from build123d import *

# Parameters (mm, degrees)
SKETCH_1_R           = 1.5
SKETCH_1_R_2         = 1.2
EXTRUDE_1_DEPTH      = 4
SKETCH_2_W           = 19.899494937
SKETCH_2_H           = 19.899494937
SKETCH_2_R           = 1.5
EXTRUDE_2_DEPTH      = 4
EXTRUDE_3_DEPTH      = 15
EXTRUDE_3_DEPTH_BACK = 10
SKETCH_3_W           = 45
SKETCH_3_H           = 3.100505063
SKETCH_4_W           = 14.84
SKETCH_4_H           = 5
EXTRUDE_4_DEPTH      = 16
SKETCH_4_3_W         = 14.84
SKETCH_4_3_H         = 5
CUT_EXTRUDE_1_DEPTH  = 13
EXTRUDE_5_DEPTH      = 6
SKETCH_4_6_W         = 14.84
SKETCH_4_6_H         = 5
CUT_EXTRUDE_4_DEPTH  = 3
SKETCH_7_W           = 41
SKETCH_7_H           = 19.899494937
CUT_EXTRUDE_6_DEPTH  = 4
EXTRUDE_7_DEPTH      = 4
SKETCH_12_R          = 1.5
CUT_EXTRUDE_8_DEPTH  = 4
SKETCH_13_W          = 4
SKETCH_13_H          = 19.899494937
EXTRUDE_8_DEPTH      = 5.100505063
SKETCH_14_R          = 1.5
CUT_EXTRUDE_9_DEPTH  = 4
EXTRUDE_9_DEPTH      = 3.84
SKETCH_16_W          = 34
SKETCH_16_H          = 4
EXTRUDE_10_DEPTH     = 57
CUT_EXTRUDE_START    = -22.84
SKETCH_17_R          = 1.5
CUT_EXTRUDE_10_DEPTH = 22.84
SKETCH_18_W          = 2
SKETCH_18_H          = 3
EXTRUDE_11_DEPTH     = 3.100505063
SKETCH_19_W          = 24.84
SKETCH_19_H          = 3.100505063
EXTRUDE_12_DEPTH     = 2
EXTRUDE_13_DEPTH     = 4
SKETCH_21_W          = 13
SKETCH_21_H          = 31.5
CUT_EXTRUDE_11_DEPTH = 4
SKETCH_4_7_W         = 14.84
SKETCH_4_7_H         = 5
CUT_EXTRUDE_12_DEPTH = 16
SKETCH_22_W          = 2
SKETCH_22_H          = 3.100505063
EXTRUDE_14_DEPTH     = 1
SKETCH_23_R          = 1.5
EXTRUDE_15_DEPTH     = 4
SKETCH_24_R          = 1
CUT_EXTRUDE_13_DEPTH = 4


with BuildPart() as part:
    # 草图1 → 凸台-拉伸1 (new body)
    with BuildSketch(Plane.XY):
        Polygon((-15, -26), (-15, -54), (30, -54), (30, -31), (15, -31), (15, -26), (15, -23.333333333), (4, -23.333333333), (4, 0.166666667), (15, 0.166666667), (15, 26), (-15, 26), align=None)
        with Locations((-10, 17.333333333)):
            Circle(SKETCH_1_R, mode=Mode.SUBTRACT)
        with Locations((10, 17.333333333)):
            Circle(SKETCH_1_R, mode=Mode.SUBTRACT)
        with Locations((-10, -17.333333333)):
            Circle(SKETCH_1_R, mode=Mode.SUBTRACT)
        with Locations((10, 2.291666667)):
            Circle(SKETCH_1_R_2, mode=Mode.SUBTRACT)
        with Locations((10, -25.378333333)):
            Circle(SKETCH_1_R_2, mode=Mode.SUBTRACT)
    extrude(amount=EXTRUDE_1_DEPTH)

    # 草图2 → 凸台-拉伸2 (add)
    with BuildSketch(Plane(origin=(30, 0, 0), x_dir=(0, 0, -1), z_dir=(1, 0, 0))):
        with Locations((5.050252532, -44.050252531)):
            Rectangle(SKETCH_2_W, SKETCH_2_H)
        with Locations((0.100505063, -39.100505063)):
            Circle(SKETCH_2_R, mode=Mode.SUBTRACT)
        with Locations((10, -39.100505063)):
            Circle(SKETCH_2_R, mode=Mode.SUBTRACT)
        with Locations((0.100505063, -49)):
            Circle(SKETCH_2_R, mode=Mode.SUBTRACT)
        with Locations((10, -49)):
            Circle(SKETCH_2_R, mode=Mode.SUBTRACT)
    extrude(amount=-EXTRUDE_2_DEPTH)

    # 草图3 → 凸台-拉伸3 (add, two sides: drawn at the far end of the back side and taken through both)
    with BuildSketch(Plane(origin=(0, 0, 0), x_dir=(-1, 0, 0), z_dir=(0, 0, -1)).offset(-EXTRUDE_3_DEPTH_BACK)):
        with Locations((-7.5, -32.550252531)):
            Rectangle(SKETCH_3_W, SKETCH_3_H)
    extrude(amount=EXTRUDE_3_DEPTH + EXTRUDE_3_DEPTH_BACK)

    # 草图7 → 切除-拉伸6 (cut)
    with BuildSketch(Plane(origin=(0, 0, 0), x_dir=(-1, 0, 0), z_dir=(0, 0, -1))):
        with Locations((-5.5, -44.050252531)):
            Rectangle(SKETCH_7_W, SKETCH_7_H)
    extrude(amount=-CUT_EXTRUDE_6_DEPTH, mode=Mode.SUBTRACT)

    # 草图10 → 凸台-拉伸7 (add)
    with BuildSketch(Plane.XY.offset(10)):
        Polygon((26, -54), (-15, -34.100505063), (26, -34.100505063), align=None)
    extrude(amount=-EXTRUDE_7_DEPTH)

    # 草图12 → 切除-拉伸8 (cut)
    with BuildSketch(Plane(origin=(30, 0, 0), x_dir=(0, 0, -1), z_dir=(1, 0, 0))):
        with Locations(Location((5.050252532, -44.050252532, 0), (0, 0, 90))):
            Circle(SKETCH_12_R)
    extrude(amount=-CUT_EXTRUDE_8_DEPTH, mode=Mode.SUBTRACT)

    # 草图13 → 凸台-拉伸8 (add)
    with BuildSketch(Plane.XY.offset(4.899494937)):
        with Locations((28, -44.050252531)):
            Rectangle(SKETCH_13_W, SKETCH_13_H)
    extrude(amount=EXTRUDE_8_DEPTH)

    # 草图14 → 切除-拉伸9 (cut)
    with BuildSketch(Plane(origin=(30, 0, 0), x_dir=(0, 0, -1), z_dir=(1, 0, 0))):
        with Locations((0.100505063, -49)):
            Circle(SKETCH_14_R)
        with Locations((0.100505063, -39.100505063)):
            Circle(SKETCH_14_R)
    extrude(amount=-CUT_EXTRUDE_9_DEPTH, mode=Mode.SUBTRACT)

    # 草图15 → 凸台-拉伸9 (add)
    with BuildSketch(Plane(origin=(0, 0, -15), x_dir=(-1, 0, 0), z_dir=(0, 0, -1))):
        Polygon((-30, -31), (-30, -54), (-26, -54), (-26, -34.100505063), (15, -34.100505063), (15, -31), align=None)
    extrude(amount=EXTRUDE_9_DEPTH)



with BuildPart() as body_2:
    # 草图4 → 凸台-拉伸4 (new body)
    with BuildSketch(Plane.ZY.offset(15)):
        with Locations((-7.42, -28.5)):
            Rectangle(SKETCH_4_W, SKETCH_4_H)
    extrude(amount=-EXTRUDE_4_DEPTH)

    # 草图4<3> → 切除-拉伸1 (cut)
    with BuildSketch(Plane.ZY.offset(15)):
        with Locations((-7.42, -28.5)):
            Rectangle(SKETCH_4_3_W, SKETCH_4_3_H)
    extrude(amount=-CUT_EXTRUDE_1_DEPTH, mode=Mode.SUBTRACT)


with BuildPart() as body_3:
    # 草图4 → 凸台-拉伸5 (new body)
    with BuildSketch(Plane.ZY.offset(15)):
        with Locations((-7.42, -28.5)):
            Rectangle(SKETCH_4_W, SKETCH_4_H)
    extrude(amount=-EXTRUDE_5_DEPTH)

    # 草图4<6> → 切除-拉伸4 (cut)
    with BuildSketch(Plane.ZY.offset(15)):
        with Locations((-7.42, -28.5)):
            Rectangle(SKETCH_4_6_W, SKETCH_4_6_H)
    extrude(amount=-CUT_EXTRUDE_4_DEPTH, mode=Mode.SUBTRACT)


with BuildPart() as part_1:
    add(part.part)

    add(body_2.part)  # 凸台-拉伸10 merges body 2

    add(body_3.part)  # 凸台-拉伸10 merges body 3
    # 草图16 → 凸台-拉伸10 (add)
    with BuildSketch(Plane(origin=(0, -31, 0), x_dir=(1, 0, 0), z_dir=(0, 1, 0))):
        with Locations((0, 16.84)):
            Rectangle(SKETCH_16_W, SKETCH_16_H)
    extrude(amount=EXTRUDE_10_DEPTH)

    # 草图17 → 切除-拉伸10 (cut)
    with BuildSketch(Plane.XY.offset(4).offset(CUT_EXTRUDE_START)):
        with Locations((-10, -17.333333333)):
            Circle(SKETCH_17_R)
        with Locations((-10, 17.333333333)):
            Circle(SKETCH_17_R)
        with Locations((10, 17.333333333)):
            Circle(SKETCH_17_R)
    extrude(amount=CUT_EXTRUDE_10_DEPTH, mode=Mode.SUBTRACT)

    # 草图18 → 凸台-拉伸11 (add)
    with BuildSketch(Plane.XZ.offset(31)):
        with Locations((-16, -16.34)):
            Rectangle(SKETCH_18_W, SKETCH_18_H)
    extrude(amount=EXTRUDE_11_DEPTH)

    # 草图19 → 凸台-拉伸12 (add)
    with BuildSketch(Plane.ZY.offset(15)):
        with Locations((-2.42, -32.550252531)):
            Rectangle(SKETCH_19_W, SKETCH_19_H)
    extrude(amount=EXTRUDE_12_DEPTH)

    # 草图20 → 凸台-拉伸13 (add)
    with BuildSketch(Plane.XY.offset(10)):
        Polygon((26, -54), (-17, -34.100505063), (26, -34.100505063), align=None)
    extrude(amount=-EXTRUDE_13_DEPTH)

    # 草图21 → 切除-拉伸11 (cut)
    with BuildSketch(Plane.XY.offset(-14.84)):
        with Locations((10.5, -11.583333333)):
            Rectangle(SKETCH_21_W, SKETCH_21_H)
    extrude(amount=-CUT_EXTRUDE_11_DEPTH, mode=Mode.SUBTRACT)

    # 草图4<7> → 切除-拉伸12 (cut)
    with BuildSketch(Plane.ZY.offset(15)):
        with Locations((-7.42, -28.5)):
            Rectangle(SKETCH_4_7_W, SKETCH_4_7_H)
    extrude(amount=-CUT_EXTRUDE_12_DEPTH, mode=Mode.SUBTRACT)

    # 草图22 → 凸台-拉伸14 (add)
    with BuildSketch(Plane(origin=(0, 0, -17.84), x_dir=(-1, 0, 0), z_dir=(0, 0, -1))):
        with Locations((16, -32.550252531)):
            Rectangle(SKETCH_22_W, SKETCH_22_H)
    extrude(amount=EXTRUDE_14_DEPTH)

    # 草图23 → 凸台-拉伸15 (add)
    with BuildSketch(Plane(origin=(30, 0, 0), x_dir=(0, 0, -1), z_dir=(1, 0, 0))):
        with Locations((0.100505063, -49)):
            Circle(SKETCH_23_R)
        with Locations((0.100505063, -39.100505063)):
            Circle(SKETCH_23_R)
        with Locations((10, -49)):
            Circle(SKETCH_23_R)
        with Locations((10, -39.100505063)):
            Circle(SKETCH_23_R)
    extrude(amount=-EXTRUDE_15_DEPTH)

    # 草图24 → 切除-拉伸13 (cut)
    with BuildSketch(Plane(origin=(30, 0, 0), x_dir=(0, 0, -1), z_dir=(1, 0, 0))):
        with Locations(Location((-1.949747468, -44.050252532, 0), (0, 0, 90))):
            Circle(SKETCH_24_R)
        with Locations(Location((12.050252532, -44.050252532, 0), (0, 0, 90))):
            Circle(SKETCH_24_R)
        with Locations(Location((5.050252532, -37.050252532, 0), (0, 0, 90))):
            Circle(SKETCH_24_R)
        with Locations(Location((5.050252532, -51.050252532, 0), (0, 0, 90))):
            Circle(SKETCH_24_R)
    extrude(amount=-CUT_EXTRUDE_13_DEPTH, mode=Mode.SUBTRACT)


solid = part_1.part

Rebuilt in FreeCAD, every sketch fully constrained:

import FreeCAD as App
import Part
import Sketcher
from FreeCAD import Vector
Q = App.Units.Quantity


def add_polygon(sketch, points):
    """Adds a closed chain of lines whose ends are joined by coincident constraints."""
    first, n = sketch.GeometryCount, len(points)
    for a, b in zip(points, points[1:] + points[:1]):
        sketch.addGeometry(Part.LineSegment(App.Vector(*a, 0), App.Vector(*b, 0)), False)
    for i in range(n):
        sketch.addConstraint(Sketcher.Constraint("Coincident", first + i, 2, first + (i + 1) % n, 1))

doc = App.newDocument("Part")
params = doc.addObject("Spreadsheet::Sheet", "Params")
for row, (alias, value) in enumerate([
    ("sketch1_diameter", "3 mm"),
    ("sketch1_diameter2", "2.4 mm"),
    ("sketch1_width", "45 mm"),
    ("sketch1_width2", "15 mm"),
    ("sketch1_width3", "11 mm"),
    ("pad1_length", "4 mm"),
    ("sketch2_diameter", "3 mm"),
    ("pad2_length", "4 mm"),
    ("sketch3_width", "45 mm"),
    ("pad3_length", "15 mm"),
    ("pad3_length2", "10 mm"),
    ("sketch4_width", "41 mm"),
    ("pocket1_length", "4 mm"),
    ("sketch5_width", "41 mm"),
    ("pad4_length", "4 mm"),
    ("sketch6_diameter", "3 mm"),
    ("pocket2_length", "4 mm"),
    ("sketch7_width", "4 mm"),
    ("pad5_length", "5.100505 mm"),
    ("sketch8_diameter", "3 mm"),
    ("pocket3_length", "4 mm"),
    ("sketch9_width", "4 mm"),
    ("sketch9_width2", "41 mm"),
    ("sketch9_height", "23 mm"),
    ("pad6_length", "3.84 mm"),
    ("sketch10_width", "5 mm"),
    ("sketch10_height", "14.84 mm"),
    ("pad7_length", "16 mm"),
    ("sketch11_width", "5 mm"),
    ("sketch11_height", "14.84 mm"),
    ("pocket4_length", "13 mm"),
    ("sketch12_width", "5 mm"),
    ("sketch12_height", "14.84 mm"),
    ("pad8_length", "6 mm"),
    ("sketch13_width", "5 mm"),
    ("sketch13_height", "14.84 mm"),
    ("pocket5_length", "3 mm"),
    ("sketch14_width", "34 mm"),
    ("sketch14_height", "4 mm"),
    ("pad9_length", "57 mm"),
    ("sketch15_diameter", "3 mm"),
    ("pocket6_length", "22.84 mm"),
    ("sketch16_width", "2 mm"),
    ("sketch16_height", "3 mm"),
    ("pad10_length", "3.100505 mm"),
    ("sketch17_height", "24.84 mm"),
    ("pad11_length", "2 mm"),
    ("sketch18_width", "43 mm"),
    ("pad12_length", "4 mm"),
    ("sketch19_width", "13 mm"),
    ("sketch19_height", "31.5 mm"),
    ("pocket7_length", "4 mm"),
    ("sketch20_width", "5 mm"),
    ("sketch20_height", "14.84 mm"),
    ("pocket8_length", "16 mm"),
    ("sketch21_width", "2 mm"),
    ("pad13_length", "1 mm"),
    ("sketch22_diameter", "3 mm"),
    ("pad14_length", "4 mm"),
    ("sketch23_diameter", "2 mm"),
    ("pocket9_length", "4 mm"),
], start=1):
    params.set(f"A{row}", alias)
    params.set(f"B{row}", "=" + value)
    params.setAlias(f"B{row}", alias)

body = doc.addObject("PartDesign::Body", "Body")

# Sketch on XY plane
sketch1 = body.newObject("Sketcher::SketchObject", "Sketch")
sketch1.AttachmentSupport = (doc.getObject("XY_Plane"), [""])
sketch1.MapMode = "FlatFace"
add_polygon(sketch1, [(-15, -54), (30, -54), (30, -31), (15, -31), (15, -23.3), (4, -23.3), (4, 0.2), (15, 0.2), (15, 26), (-15, 26)])  # lines 0-9
sketch1.addGeometry(Part.Circle(Vector(-10, -17.3, 0), Vector(0, 0, 1), 1.5), False)  # 10
sketch1.addGeometry(Part.Circle(Vector(10, -25.4, 0), Vector(0, 0, 1), 1.2), False)  # 11
sketch1.addGeometry(Part.Circle(Vector(-10, 17.3, 0), Vector(0, 0, 1), 1.5), False)  # 12
sketch1.addGeometry(Part.Circle(Vector(10, 2.3, 0), Vector(0, 0, 1), 1.2), False)  # 13
sketch1.addGeometry(Part.Circle(Vector(10, 17.3, 0), Vector(0, 0, 1), 1.5), False)  # 14
sketch1.addConstraint(Sketcher.Constraint("Horizontal", 0))
sketch1.addConstraint(Sketcher.Constraint("Vertical", 1))
sketch1.addConstraint(Sketcher.Constraint("Horizontal", 2))
sketch1.addConstraint(Sketcher.Constraint("Vertical", 3))
sketch1.addConstraint(Sketcher.Constraint("Horizontal", 4))
sketch1.addConstraint(Sketcher.Constraint("Vertical", 5))
sketch1.addConstraint(Sketcher.Constraint("Horizontal", 6))
sketch1.addConstraint(Sketcher.Constraint("Vertical", 7))
sketch1.addConstraint(Sketcher.Constraint("Horizontal", 8))
sketch1.addConstraint(Sketcher.Constraint("Vertical", 9))
sketch1.addConstraint(Sketcher.Constraint("Equal", 10, 12))
sketch1.addConstraint(Sketcher.Constraint("Equal", 11, 13))
sketch1.addConstraint(Sketcher.Constraint("Equal", 12, 14))
sketch1.addConstraint(Sketcher.Constraint("Symmetric", 10, 3, 14, 3, -1, 1))
sketch1.addConstraint(Sketcher.Constraint("Symmetric", 12, 3, 14, 3, -2))
sketch1.addConstraint(Sketcher.Constraint("Vertical", 11, 3, 13, 3))
sketch1.addConstraint(Sketcher.Constraint("Vertical", 13, 3, 14, 3))
sketch1.addConstraint(Sketcher.Constraint("Vertical", 3, 2, 6, 2))
sketch1.addConstraint(Sketcher.Constraint("Diameter", 10, Q("3 mm")))
sketch1.addConstraint(Sketcher.Constraint("Diameter", 11, Q("2.4 mm")))
sketch1.addConstraint(Sketcher.Constraint("DistanceX", 0, 1, 0, 2, Q("45 mm")))
sketch1.addConstraint(Sketcher.Constraint("DistanceX", 2, 2, 2, 1, Q("15 mm")))
sketch1.addConstraint(Sketcher.Constraint("DistanceX", 4, 2, 4, 1, Q("11 mm")))
sketch1.addConstraint(Sketcher.Constraint("DistanceY", 1, 1, 1, 2, Q("23 mm")))
sketch1.addConstraint(Sketcher.Constraint("DistanceY", 9, 2, 9, 1, Q("80 mm")))
sketch1.addConstraint(Sketcher.Constraint("DistanceY", 5, 1, 5, 2, Q("23.5 mm")))
sketch1.addConstraint(Sketcher.Constraint("DistanceX", 10, 3, -1, 1, Q("10 mm")))
sketch1.addConstraint(Sketcher.Constraint("DistanceX", -1, 1, 0, 2, Q("30 mm")))
sketch1.addConstraint(Sketcher.Constraint("DistanceY", 0, 2, -1, 1, Q("54 mm")))
sketch1.addConstraint(Sketcher.Constraint("DistanceY", 3, 2, 10, 3, Q("6 mm")))
sketch1.addConstraint(Sketcher.Constraint("DistanceY", 11, 3, 13, 3, Q("27.67 mm")))
sketch1.addConstraint(Sketcher.Constraint("DistanceY", 11, 3, 10, 3, Q("8.045 mm")))
sketch1.addConstraint(Sketcher.Constraint("DistanceY", 3, 1, 3, 2, Q("7.666667 mm")))
sketch1.setExpression("Constraints[28]", "Params.sketch1_diameter")
sketch1.setExpression("Constraints[29]", "Params.sketch1_diameter2")
sketch1.setExpression("Constraints[30]", "Params.sketch1_width")
sketch1.setExpression("Constraints[31]", "Params.sketch1_width2")
sketch1.setExpression("Constraints[32]", "Params.sketch1_width3")
pad1 = body.newObject("PartDesign::Pad", "Pad")
pad1.Profile = sketch1
pad1.setExpression("Length", "Params.pad1_length")

# Sketch on YZ plane
sketch2 = body.newObject("Sketcher::SketchObject", "Sketch001")
sketch2.AttachmentSupport = (doc.getObject("YZ_Plane"), [""])
sketch2.MapMode = "FlatFace"
sketch2.AttachmentOffset = App.Placement(Vector(0, 0, 30), App.Rotation())
add_polygon(sketch2, [(-34.1, 4.9), (-54, 4.9), (-54, -15), (-34.1, -15)])  # lines 0-3
sketch2.addGeometry(Part.Circle(Vector(-49, -0.1, 0), Vector(0, 0, 1), 1.5), False)  # 4
sketch2.addGeometry(Part.Circle(Vector(-49, -10, 0), Vector(0, 0, 1), 1.5), False)  # 5
sketch2.addGeometry(Part.Circle(Vector(-39.1, -0.1, 0), Vector(0, 0, 1), 1.5), False)  # 6
sketch2.addGeometry(Part.Circle(Vector(-39.1, -10, 0), Vector(0, 0, 1), 1.5), False)  # 7
sketch2.addConstraint(Sketcher.Constraint("Horizontal", 0))
sketch2.addConstraint(Sketcher.Constraint("Vertical", 1))
sketch2.addConstraint(Sketcher.Constraint("Horizontal", 2))
sketch2.addConstraint(Sketcher.Constraint("Vertical", 3))
sketch2.addConstraint(Sketcher.Constraint("Equal", 4, 5))
sketch2.addConstraint(Sketcher.Constraint("Equal", 5, 6))
sketch2.addConstraint(Sketcher.Constraint("Equal", 6, 7))
sketch2.addConstraint(Sketcher.Constraint("Horizontal", 4, 3, 6, 3))
sketch2.addConstraint(Sketcher.Constraint("Horizontal", 5, 3, 7, 3))
sketch2.addConstraint(Sketcher.Constraint("Vertical", 4, 3, 5, 3))
sketch2.addConstraint(Sketcher.Constraint("Vertical", 6, 3, 7, 3))
sketch2.addConstraint(Sketcher.Constraint("Equal", 2, 1))
sketch2.addConstraint(Sketcher.Constraint("Diameter", 4, Q("3 mm")))
sketch2.addConstraint(Sketcher.Constraint("DistanceX", 4, 3, -1, 1, Q("49 mm")))
sketch2.addConstraint(Sketcher.Constraint("DistanceY", 5, 3, -1, 1, Q("10 mm")))
sketch2.addConstraint(Sketcher.Constraint("DistanceX", 0, 2, -1, 1, Q("54 mm")))
sketch2.addConstraint(Sketcher.Constraint("DistanceY", 1, 2, -1, 1, Q("15 mm")))
sketch2.addConstraint(Sketcher.Constraint("DistanceY", 4, 3, 0, 2, Q("5 mm")))
sketch2.addConstraint(Sketcher.Constraint("DistanceX", 7, 3, 2, 2, Q("5 mm")))
sketch2.addConstraint(Sketcher.Constraint("DistanceX", 0, 2, 0, 1, Q("19.899495 mm")))
sketch2.setExpression("Constraints[16]", "Params.sketch2_diameter")
pad2 = body.newObject("PartDesign::Pad", "Pad001")
pad2.Profile = sketch2
pad2.setExpression("Length", "Params.pad2_length")
pad2.Reversed = True

# Sketch on XY plane
sketch3 = body.newObject("Sketcher::SketchObject", "Sketch002")
sketch3.AttachmentSupport = (doc.getObject("XY_Plane"), [""])
sketch3.MapMode = "FlatFace"
add_polygon(sketch3, [(30, -31), (30, -34.1), (-15, -34.1), (-15, -31)])  # lines 0-3
sketch3.addConstraint(Sketcher.Constraint("Vertical", 0))
sketch3.addConstraint(Sketcher.Constraint("Horizontal", 1))
sketch3.addConstraint(Sketcher.Constraint("Vertical", 2))
sketch3.addConstraint(Sketcher.Constraint("Horizontal", 3))
sketch3.addConstraint(Sketcher.Constraint("DistanceX", 1, 2, 1, 1, Q("45 mm")))
sketch3.addConstraint(Sketcher.Constraint("DistanceX", -1, 1, 0, 2, Q("30 mm")))
sketch3.addConstraint(Sketcher.Constraint("DistanceY", 2, 2, -1, 1, Q("31 mm")))
sketch3.addConstraint(Sketcher.Constraint("DistanceY", 0, 2, 0, 1, Q("3.100505 mm")))
sketch3.setExpression("Constraints[8]", "Params.sketch3_width")
pad3 = body.newObject("PartDesign::Pad", "Pad002")
pad3.Profile = sketch3
pad3.Type = "TwoLengths"
pad3.setExpression("Length", "Params.pad3_length")
pad3.setExpression("Length2", "Params.pad3_length2")
pad3.Reversed = True

# Sketch on XY plane
sketch4 = body.newObject("Sketcher::SketchObject", "Sketch003")
sketch4.AttachmentSupport = (doc.getObject("XY_Plane"), [""])
sketch4.MapMode = "FlatFace"
add_polygon(sketch4, [(26, -34), (26, -54), (-15, -54), (-15, -34)])  # lines 0-3
sketch4.addConstraint(Sketcher.Constraint("Vertical", 0))
sketch4.addConstraint(Sketcher.Constraint("Horizontal", 1))
sketch4.addConstraint(Sketcher.Constraint("Vertical", 2))
sketch4.addConstraint(Sketcher.Constraint("Horizontal", 3))
sketch4.addConstraint(Sketcher.Constraint("DistanceX", 1, 2, 1, 1, Q("41 mm")))
sketch4.addConstraint(Sketcher.Constraint("DistanceX", -1, 1, 0, 2, Q("26 mm")))
sketch4.addConstraint(Sketcher.Constraint("DistanceY", 0, 2, -1, 1, Q("54 mm")))
sketch4.addConstraint(Sketcher.Constraint("DistanceY", 0, 2, 0, 1, Q("19.899495 mm")))
sketch4.setExpression("Constraints[8]", "Params.sketch4_width")
pocket1 = body.newObject("PartDesign::Pocket", "Pocket")
pocket1.Profile = sketch4
pocket1.setExpression("Length", "Params.pocket1_length")
pocket1.Reversed = True

# Sketch on XY plane
sketch5 = body.newObject("Sketcher::SketchObject", "Sketch004")
sketch5.AttachmentSupport = (doc.getObject("XY_Plane"), [""])
sketch5.MapMode = "FlatFace"
sketch5.AttachmentOffset = App.Placement(Vector(0, 0, 10), App.Rotation())
add_polygon(sketch5, [(-15, -34), (26, -54), (26, -34)])  # lines 0-2
sketch5.addConstraint(Sketcher.Constraint("Vertical", 1))
sketch5.addConstraint(Sketcher.Constraint("Horizontal", 2))
sketch5.addConstraint(Sketcher.Constraint("DistanceX", 2, 2, 2, 1, Q("41 mm")))
sketch5.addConstraint(Sketcher.Constraint("DistanceX", -1, 1, 0, 2, Q("26 mm")))
sketch5.addConstraint(Sketcher.Constraint("DistanceY", 0, 2, -1, 1, Q("54 mm")))
sketch5.addConstraint(Sketcher.Constraint("DistanceY", 1, 1, 1, 2, Q("19.899495 mm")))
sketch5.setExpression("Constraints[5]", "Params.sketch5_width")
pad4 = body.newObject("PartDesign::Pad", "Pad003")
pad4.Profile = sketch5
pad4.setExpression("Length", "Params.pad4_length")
pad4.Reversed = True

# Sketch on YZ plane
sketch6 = body.newObject("Sketcher::SketchObject", "Sketch005")
sketch6.AttachmentSupport = (doc.getObject("YZ_Plane"), [""])
sketch6.MapMode = "FlatFace"
sketch6.AttachmentOffset = App.Placement(Vector(0, 0, 30), App.Rotation())
sketch6.addGeometry(Part.Circle(Vector(-44.1, -5.1, 0), Vector(0, 0, 1), 1.5), False)
sketch6.addConstraint(Sketcher.Constraint("Diameter", 0, Q("3 mm")))
sketch6.addConstraint(Sketcher.Constraint("DistanceX", 0, 3, -1, 1, Q("44.050253 mm")))
sketch6.addConstraint(Sketcher.Constraint("DistanceY", 0, 3, -1, 1, Q("5.050253 mm")))
sketch6.setExpression("Constraints[0]", "Params.sketch6_diameter")
pocket2 = body.newObject("PartDesign::Pocket", "Pocket001")
pocket2.Profile = sketch6
pocket2.setExpression("Length", "Params.pocket2_length")

# Sketch on XY plane
sketch7 = body.newObject("Sketcher::SketchObject", "Sketch006")
sketch7.AttachmentSupport = (doc.getObject("XY_Plane"), [""])
sketch7.MapMode = "FlatFace"
sketch7.AttachmentOffset = App.Placement(Vector(0, 0, 4.899495), App.Rotation())
add_polygon(sketch7, [(26, -34.1), (26, -54), (30, -54), (30, -34.1)])  # lines 0-3
sketch7.addConstraint(Sketcher.Constraint("Vertical", 0))
sketch7.addConstraint(Sketcher.Constraint("Horizontal", 1))
sketch7.addConstraint(Sketcher.Constraint("Vertical", 2))
sketch7.addConstraint(Sketcher.Constraint("Horizontal", 3))
sketch7.addConstraint(Sketcher.Constraint("DistanceX", 1, 1, 1, 2, Q("4 mm")))
sketch7.addConstraint(Sketcher.Constraint("DistanceX", -1, 1, 0, 2, Q("26 mm")))
sketch7.addConstraint(Sketcher.Constraint("DistanceY", 0, 2, -1, 1, Q("54 mm")))
sketch7.addConstraint(Sketcher.Constraint("DistanceY", 0, 2, 0, 1, Q("19.899495 mm")))
sketch7.setExpression("Constraints[8]", "Params.sketch7_width")
pad5 = body.newObject("PartDesign::Pad", "Pad004")
pad5.Profile = sketch7
pad5.setExpression("Length", "Params.pad5_length")

# Sketch on YZ plane
sketch8 = body.newObject("Sketcher::SketchObject", "Sketch007")
sketch8.AttachmentSupport = (doc.getObject("YZ_Plane"), [""])
sketch8.MapMode = "FlatFace"
sketch8.AttachmentOffset = App.Placement(Vector(0, 0, 30), App.Rotation())
sketch8.addGeometry(Part.Circle(Vector(-49, -0.1, 0), Vector(0, 0, 1), 1.5), False)
sketch8.addGeometry(Part.Circle(Vector(-39.1, -0.1, 0), Vector(0, 0, 1), 1.5), False)
sketch8.addConstraint(Sketcher.Constraint("Equal", 0, 1))
sketch8.addConstraint(Sketcher.Constraint("Horizontal", 0, 3, 1, 3))
sketch8.addConstraint(Sketcher.Constraint("Diameter", 0, Q("3 mm")))
sketch8.addConstraint(Sketcher.Constraint("DistanceX", 0, 3, -1, 1, Q("49 mm")))
sketch8.addConstraint(Sketcher.Constraint("DistanceY", 0, 3, -1, 1, Q("0.100505 mm")))
sketch8.addConstraint(Sketcher.Constraint("DistanceX", 1, 3, -1, 1, Q("39.100505 mm")))
sketch8.setExpression("Constraints[2]", "Params.sketch8_diameter")
pocket3 = body.newObject("PartDesign::Pocket", "Pocket002")
pocket3.Profile = sketch8
pocket3.setExpression("Length", "Params.pocket3_length")

# Sketch on XY plane
sketch9 = body.newObject("Sketcher::SketchObject", "Sketch008")
sketch9.AttachmentSupport = (doc.getObject("XY_Plane"), [""])
sketch9.MapMode = "FlatFace"
sketch9.AttachmentOffset = App.Placement(Vector(0, 0, -15), App.Rotation())
add_polygon(sketch9, [(30, -31), (30, -54), (26, -54), (26, -34.1), (-15, -34.1), (-15, -31)])  # lines 0-5
sketch9.addConstraint(Sketcher.Constraint("Vertical", 0))
sketch9.addConstraint(Sketcher.Constraint("Horizontal", 1))
sketch9.addConstraint(Sketcher.Constraint("Vertical", 2))
sketch9.addConstraint(Sketcher.Constraint("Horizontal", 3))
sketch9.addConstraint(Sketcher.Constraint("Vertical", 4))
sketch9.addConstraint(Sketcher.Constraint("Horizontal", 5))
sketch9.addConstraint(Sketcher.Constraint("DistanceX", 1, 2, 1, 1, Q("4 mm")))
sketch9.addConstraint(Sketcher.Constraint("DistanceX", 3, 2, 3, 1, Q("41 mm")))
sketch9.addConstraint(Sketcher.Constraint("DistanceY", 0, 2, 0, 1, Q("23 mm")))
sketch9.addConstraint(Sketcher.Constraint("DistanceX", -1, 1, 0, 2, Q("30 mm")))
sketch9.addConstraint(Sketcher.Constraint("DistanceY", 0, 2, -1, 1, Q("54 mm")))
sketch9.addConstraint(Sketcher.Constraint("DistanceY", 2, 1, 2, 2, Q("19.899495 mm")))
sketch9.setExpression("Constraints[12]", "Params.sketch9_width")
sketch9.setExpression("Constraints[13]", "Params.sketch9_width2")
sketch9.setExpression("Constraints[14]", "Params.sketch9_height")
pad6 = body.newObject("PartDesign::Pad", "Pad005")
pad6.Profile = sketch9
pad6.setExpression("Length", "Params.pad6_length")
pad6.Reversed = True
body2 = doc.addObject("PartDesign::Body", "Body001")

# Sketch on YZ plane
sketch10 = body2.newObject("Sketcher::SketchObject", "Sketch009")
sketch10.AttachmentSupport = (doc.getObject("YZ_Plane001"), [""])
sketch10.MapMode = "FlatFace"
sketch10.AttachmentOffset = App.Placement(Vector(0, 0, -15), App.Rotation())
add_polygon(sketch10, [(-26, -15), (-31, -15), (-31, 0), (-26, 0)])  # lines 0-3
sketch10.addConstraint(Sketcher.Constraint("Horizontal", 0))
sketch10.addConstraint(Sketcher.Constraint("Vertical", 1))
sketch10.addConstraint(Sketcher.Constraint("Horizontal", 2))
sketch10.addConstraint(Sketcher.Constraint("Vertical", 3))
sketch10.addConstraint(Sketcher.Constraint("PointOnObject", 1, 2, -1))
sketch10.addConstraint(Sketcher.Constraint("DistanceX", 0, 2, 0, 1, Q("5 mm")))
sketch10.addConstraint(Sketcher.Constraint("DistanceX", 0, 2, -1, 1, Q("31 mm")))
sketch10.addConstraint(Sketcher.Constraint("DistanceY", 1, 1, 1, 2, Q("14.84 mm")))
sketch10.setExpression("Constraints[9]", "Params.sketch10_width")
sketch10.setExpression("Constraints[11]", "Params.sketch10_height")
pad7 = body2.newObject("PartDesign::Pad", "Pad006")
pad7.Profile = sketch10
pad7.setExpression("Length", "Params.pad7_length")

# Sketch on YZ plane
sketch11 = body2.newObject("Sketcher::SketchObject", "Sketch010")
sketch11.AttachmentSupport = (doc.getObject("YZ_Plane001"), [""])
sketch11.MapMode = "FlatFace"
sketch11.AttachmentOffset = App.Placement(Vector(0, 0, -15), App.Rotation())
add_polygon(sketch11, [(-26, -15), (-31, -15), (-31, 0), (-26, 0)])  # lines 0-3
sketch11.addConstraint(Sketcher.Constraint("Horizontal", 0))
sketch11.addConstraint(Sketcher.Constraint("Vertical", 1))
sketch11.addConstraint(Sketcher.Constraint("Horizontal", 2))
sketch11.addConstraint(Sketcher.Constraint("Vertical", 3))
sketch11.addConstraint(Sketcher.Constraint("PointOnObject", 1, 2, -1))
sketch11.addConstraint(Sketcher.Constraint("DistanceX", 0, 2, 0, 1, Q("5 mm")))
sketch11.addConstraint(Sketcher.Constraint("DistanceX", 0, 2, -1, 1, Q("31 mm")))
sketch11.addConstraint(Sketcher.Constraint("DistanceY", 1, 1, 1, 2, Q("14.84 mm")))
sketch11.setExpression("Constraints[9]", "Params.sketch11_width")
sketch11.setExpression("Constraints[11]", "Params.sketch11_height")
pocket4 = body2.newObject("PartDesign::Pocket", "Pocket003")
pocket4.Profile = sketch11
pocket4.setExpression("Length", "Params.pocket4_length")
pocket4.Reversed = True
body3 = doc.addObject("PartDesign::Body", "Body002")

# Sketch on YZ plane
sketch12 = body3.newObject("Sketcher::SketchObject", "Sketch011")
sketch12.AttachmentSupport = (doc.getObject("YZ_Plane002"), [""])
sketch12.MapMode = "FlatFace"
sketch12.AttachmentOffset = App.Placement(Vector(0, 0, -15), App.Rotation())
add_polygon(sketch12, [(-26, -15), (-31, -15), (-31, 0), (-26, 0)])  # lines 0-3
sketch12.addConstraint(Sketcher.Constraint("Horizontal", 0))
sketch12.addConstraint(Sketcher.Constraint("Vertical", 1))
sketch12.addConstraint(Sketcher.Constraint("Horizontal", 2))
sketch12.addConstraint(Sketcher.Constraint("Vertical", 3))
sketch12.addConstraint(Sketcher.Constraint("PointOnObject", 1, 2, -1))
sketch12.addConstraint(Sketcher.Constraint("DistanceX", 0, 2, 0, 1, Q("5 mm")))
sketch12.addConstraint(Sketcher.Constraint("DistanceX", 0, 2, -1, 1, Q("31 mm")))
sketch12.addConstraint(Sketcher.Constraint("DistanceY", 1, 1, 1, 2, Q("14.84 mm")))
sketch12.setExpression("Constraints[9]", "Params.sketch12_width")
sketch12.setExpression("Constraints[11]", "Params.sketch12_height")
pad8 = body3.newObject("PartDesign::Pad", "Pad007")
pad8.Profile = sketch12
pad8.setExpression("Length", "Params.pad8_length")

# Sketch on YZ plane
sketch13 = body3.newObject("Sketcher::SketchObject", "Sketch012")
sketch13.AttachmentSupport = (doc.getObject("YZ_Plane002"), [""])
sketch13.MapMode = "FlatFace"
sketch13.AttachmentOffset = App.Placement(Vector(0, 0, -15), App.Rotation())
add_polygon(sketch13, [(-26, -15), (-31, -15), (-31, 0), (-26, 0)])  # lines 0-3
sketch13.addConstraint(Sketcher.Constraint("Horizontal", 0))
sketch13.addConstraint(Sketcher.Constraint("Vertical", 1))
sketch13.addConstraint(Sketcher.Constraint("Horizontal", 2))
sketch13.addConstraint(Sketcher.Constraint("Vertical", 3))
sketch13.addConstraint(Sketcher.Constraint("PointOnObject", 1, 2, -1))
sketch13.addConstraint(Sketcher.Constraint("DistanceX", 0, 2, 0, 1, Q("5 mm")))
sketch13.addConstraint(Sketcher.Constraint("DistanceX", 0, 2, -1, 1, Q("31 mm")))
sketch13.addConstraint(Sketcher.Constraint("DistanceY", 1, 1, 1, 2, Q("14.84 mm")))
sketch13.setExpression("Constraints[9]", "Params.sketch13_width")
sketch13.setExpression("Constraints[11]", "Params.sketch13_height")
pocket5 = body3.newObject("PartDesign::Pocket", "Pocket004")
pocket5.Profile = sketch13
pocket5.setExpression("Length", "Params.pocket5_length")
pocket5.Reversed = True
doc.recompute()

boolean = body.newObject("PartDesign::Boolean", "Boolean")
boolean.Type = "Fuse"
boolean.addObjects([body2])
doc.recompute()

boolean2 = body.newObject("PartDesign::Boolean", "Boolean001")
boolean2.Type = "Fuse"
boolean2.addObjects([body3])

# Sketch on XZ plane
sketch14 = body.newObject("Sketcher::SketchObject", "Sketch013")
sketch14.AttachmentSupport = (doc.getObject("XZ_Plane"), [""])
sketch14.MapMode = "FlatFace"
sketch14.AttachmentOffset = App.Placement(Vector(0, 0, 31), App.Rotation())
add_polygon(sketch14, [(-17, -18.8), (-17, -14.8), (17, -14.8), (17, -18.8)])  # lines 0-3
sketch14.addConstraint(Sketcher.Constraint("Vertical", 0))
sketch14.addConstraint(Sketcher.Constraint("Horizontal", 1))
sketch14.addConstraint(Sketcher.Constraint("Vertical", 2))
sketch14.addConstraint(Sketcher.Constraint("Horizontal", 3))
sketch14.addConstraint(Sketcher.Constraint("DistanceX", 1, 1, 1, 2, Q("34 mm")))
sketch14.addConstraint(Sketcher.Constraint("DistanceY", 0, 1, 0, 2, Q("4 mm")))
sketch14.addConstraint(Sketcher.Constraint("DistanceX", 0, 2, -1, 1, Q("17 mm")))
sketch14.addConstraint(Sketcher.Constraint("DistanceY", 0, 2, -1, 1, Q("14.84 mm")))
sketch14.setExpression("Constraints[8]", "Params.sketch14_width")
sketch14.setExpression("Constraints[9]", "Params.sketch14_height")
pad9 = body.newObject("PartDesign::Pad", "Pad008")
pad9.Profile = sketch14
pad9.setExpression("Length", "Params.pad9_length")
pad9.Reversed = True

# Sketch on XY plane
sketch15 = body.newObject("Sketcher::SketchObject", "Sketch014")
sketch15.AttachmentSupport = (doc.getObject("XY_Plane"), [""])
sketch15.MapMode = "FlatFace"
sketch15.AttachmentOffset = App.Placement(Vector(0, 0, -18.84), App.Rotation())
sketch15.addGeometry(Part.Circle(Vector(-10, -17.3, 0), Vector(0, 0, 1), 1.5), False)
sketch15.addGeometry(Part.Circle(Vector(-10, 17.3, 0), Vector(0, 0, 1), 1.5), False)
sketch15.addGeometry(Part.Circle(Vector(10, 17.3, 0), Vector(0, 0, 1), 1.5), False)
sketch15.addConstraint(Sketcher.Constraint("Equal", 0, 1))
sketch15.addConstraint(Sketcher.Constraint("Equal", 1, 2))
sketch15.addConstraint(Sketcher.Constraint("Symmetric", 0, 3, 2, 3, -1, 1))
sketch15.addConstraint(Sketcher.Constraint("Symmetric", 1, 3, 2, 3, -2))
sketch15.addConstraint(Sketcher.Constraint("Diameter", 0, Q("3 mm")))
sketch15.addConstraint(Sketcher.Constraint("DistanceX", 0, 3, -1, 1, Q("10 mm")))
sketch15.addConstraint(Sketcher.Constraint("DistanceY", 0, 3, -1, 1, Q("17.333333 mm")))
sketch15.setExpression("Constraints[4]", "Params.sketch15_diameter")
pocket6 = body.newObject("PartDesign::Pocket", "Pocket005")
pocket6.Profile = sketch15
pocket6.setExpression("Length", "Params.pocket6_length")
pocket6.Reversed = True

# Sketch on XZ plane
sketch16 = body.newObject("Sketcher::SketchObject", "Sketch015")
sketch16.AttachmentSupport = (doc.getObject("XZ_Plane"), [""])
sketch16.MapMode = "FlatFace"
sketch16.AttachmentOffset = App.Placement(Vector(0, 0, 31), App.Rotation())
add_polygon(sketch16, [(-17, -14.8), (-17, -17.8), (-15, -17.8), (-15, -14.8)])  # lines 0-3
sketch16.addConstraint(Sketcher.Constraint("Vertical", 0))
sketch16.addConstraint(Sketcher.Constraint("Horizontal", 1))
sketch16.addConstraint(Sketcher.Constraint("Vertical", 2))
sketch16.addConstraint(Sketcher.Constraint("Horizontal", 3))
sketch16.addConstraint(Sketcher.Constraint("DistanceX", 1, 1, 1, 2, Q("2 mm")))
sketch16.addConstraint(Sketcher.Constraint("DistanceY", 0, 2, 0, 1, Q("3 mm")))
sketch16.addConstraint(Sketcher.Constraint("DistanceX", 0, 2, -1, 1, Q("17 mm")))
sketch16.addConstraint(Sketcher.Constraint("DistanceY", 0, 2, -1, 1, Q("17.84 mm")))
sketch16.setExpression("Constraints[8]", "Params.sketch16_width")
sketch16.setExpression("Constraints[9]", "Params.sketch16_height")
pad10 = body.newObject("PartDesign::Pad", "Pad009")
pad10.Profile = sketch16
pad10.setExpression("Length", "Params.pad10_length")

# Sketch on YZ plane
sketch17 = body.newObject("Sketcher::SketchObject", "Sketch016")
sketch17.AttachmentSupport = (doc.getObject("YZ_Plane"), [""])
sketch17.MapMode = "FlatFace"
sketch17.AttachmentOffset = App.Placement(Vector(0, 0, -15), App.Rotation())
add_polygon(sketch17, [(-31, -14.8), (-34.1, -14.8), (-34.1, 10), (-31, 10)])  # lines 0-3
sketch17.addConstraint(Sketcher.Constraint("Horizontal", 0))
sketch17.addConstraint(Sketcher.Constraint("Vertical", 1))
sketch17.addConstraint(Sketcher.Constraint("Horizontal", 2))
sketch17.addConstraint(Sketcher.Constraint("Vertical", 3))
sketch17.addConstraint(Sketcher.Constraint("DistanceY", -1, 1, 1, 2, Q("10 mm")))
sketch17.addConstraint(Sketcher.Constraint("DistanceX", 2, 2, -1, 1, Q("31 mm")))
sketch17.addConstraint(Sketcher.Constraint("DistanceY", 1, 1, 1, 2, Q("24.84 mm")))
sketch17.addConstraint(Sketcher.Constraint("DistanceX", 0, 2, 0, 1, Q("3.100505 mm")))
sketch17.setExpression("Constraints[10]", "Params.sketch17_height")
pad11 = body.newObject("PartDesign::Pad", "Pad010")
pad11.Profile = sketch17
pad11.setExpression("Length", "Params.pad11_length")
pad11.Reversed = True

# Sketch on XY plane
sketch18 = body.newObject("Sketcher::SketchObject", "Sketch017")
sketch18.AttachmentSupport = (doc.getObject("XY_Plane"), [""])
sketch18.MapMode = "FlatFace"
sketch18.AttachmentOffset = App.Placement(Vector(0, 0, 10), App.Rotation())
add_polygon(sketch18, [(-17, -34), (26, -54), (26, -34)])  # lines 0-2
sketch18.addConstraint(Sketcher.Constraint("Vertical", 1))
sketch18.addConstraint(Sketcher.Constraint("Horizontal", 2))
sketch18.addConstraint(Sketcher.Constraint("DistanceX", 2, 2, 2, 1, Q("43 mm")))
sketch18.addConstraint(Sketcher.Constraint("DistanceX", -1, 1, 0, 2, Q("26 mm")))
sketch18.addConstraint(Sketcher.Constraint("DistanceY", 0, 2, -1, 1, Q("54 mm")))
sketch18.addConstraint(Sketcher.Constraint("DistanceY", 1, 1, 1, 2, Q("19.899495 mm")))
sketch18.setExpression("Constraints[5]", "Params.sketch18_width")
pad12 = body.newObject("PartDesign::Pad", "Pad011")
pad12.Profile = sketch18
pad12.setExpression("Length", "Params.pad12_length")
pad12.Reversed = True

# Sketch on XY plane
sketch19 = body.newObject("Sketcher::SketchObject", "Sketch018")
sketch19.AttachmentSupport = (doc.getObject("XY_Plane"), [""])
sketch19.MapMode = "FlatFace"
sketch19.AttachmentOffset = App.Placement(Vector(0, 0, -14.84), App.Rotation())
add_polygon(sketch19, [(4, 4), (4, -27), (17, -27), (17, 4)])  # lines 0-3
sketch19.addConstraint(Sketcher.Constraint("Vertical", 0))
sketch19.addConstraint(Sketcher.Constraint("Horizontal", 1))
sketch19.addConstraint(Sketcher.Constraint("Vertical", 2))
sketch19.addConstraint(Sketcher.Constraint("Horizontal", 3))
sketch19.addConstraint(Sketcher.Constraint("DistanceX", 1, 1, 1, 2, Q("13 mm")))
sketch19.addConstraint(Sketcher.Constraint("DistanceY", 0, 2, 0, 1, Q("31.5 mm")))
sketch19.addConstraint(Sketcher.Constraint("DistanceX", -1, 1, 0, 2, Q("4 mm")))
sketch19.addConstraint(Sketcher.Constraint("DistanceY", 0, 2, -1, 1, Q("27.333333 mm")))
sketch19.setExpression("Constraints[8]", "Params.sketch19_width")
sketch19.setExpression("Constraints[9]", "Params.sketch19_height")
pocket7 = body.newObject("PartDesign::Pocket", "Pocket006")
pocket7.Profile = sketch19
pocket7.setExpression("Length", "Params.pocket7_length")

# Sketch on YZ plane
sketch20 = body.newObject("Sketcher::SketchObject", "Sketch019")
sketch20.AttachmentSupport = (doc.getObject("YZ_Plane"), [""])
sketch20.MapMode = "FlatFace"
sketch20.AttachmentOffset = App.Placement(Vector(0, 0, -15), App.Rotation())
add_polygon(sketch20, [(-26, -15), (-31, -15), (-31, 0), (-26, 0)])  # lines 0-3
sketch20.addConstraint(Sketcher.Constraint("Horizontal", 0))
sketch20.addConstraint(Sketcher.Constraint("Vertical", 1))
sketch20.addConstraint(Sketcher.Constraint("Horizontal", 2))
sketch20.addConstraint(Sketcher.Constraint("Vertical", 3))
sketch20.addConstraint(Sketcher.Constraint("PointOnObject", 1, 2, -1))
sketch20.addConstraint(Sketcher.Constraint("DistanceX", 0, 2, 0, 1, Q("5 mm")))
sketch20.addConstraint(Sketcher.Constraint("DistanceX", 0, 2, -1, 1, Q("31 mm")))
sketch20.addConstraint(Sketcher.Constraint("DistanceY", 1, 1, 1, 2, Q("14.84 mm")))
sketch20.setExpression("Constraints[9]", "Params.sketch20_width")
sketch20.setExpression("Constraints[11]", "Params.sketch20_height")
pocket8 = body.newObject("PartDesign::Pocket", "Pocket007")
pocket8.Profile = sketch20
pocket8.setExpression("Length", "Params.pocket8_length")
pocket8.Reversed = True

# Sketch on XY plane
sketch21 = body.newObject("Sketcher::SketchObject", "Sketch020")
sketch21.AttachmentSupport = (doc.getObject("XY_Plane"), [""])
sketch21.MapMode = "FlatFace"
sketch21.AttachmentOffset = App.Placement(Vector(0, 0, -17.84), App.Rotation())
add_polygon(sketch21, [(-15, -31), (-15, -34.1), (-17, -34.1), (-17, -31)])  # lines 0-3
sketch21.addConstraint(Sketcher.Constraint("Vertical", 0))
sketch21.addConstraint(Sketcher.Constraint("Horizontal", 1))
sketch21.addConstraint(Sketcher.Constraint("Vertical", 2))
sketch21.addConstraint(Sketcher.Constraint("Horizontal", 3))
sketch21.addConstraint(Sketcher.Constraint("DistanceX", 1, 2, 1, 1, Q("2 mm")))
sketch21.addConstraint(Sketcher.Constraint("DistanceX", 0, 2, -1, 1, Q("15 mm")))
sketch21.addConstraint(Sketcher.Constraint("DistanceY", 2, 2, -1, 1, Q("31 mm")))
sketch21.addConstraint(Sketcher.Constraint("DistanceY", 0, 2, 0, 1, Q("3.100505 mm")))
sketch21.setExpression("Constraints[8]", "Params.sketch21_width")
pad13 = body.newObject("PartDesign::Pad", "Pad012")
pad13.Profile = sketch21
pad13.setExpression("Length", "Params.pad13_length")
pad13.Reversed = True

# Sketch on YZ plane
sketch22 = body.newObject("Sketcher::SketchObject", "Sketch021")
sketch22.AttachmentSupport = (doc.getObject("YZ_Plane"), [""])
sketch22.MapMode = "FlatFace"
sketch22.AttachmentOffset = App.Placement(Vector(0, 0, 30), App.Rotation())
sketch22.addGeometry(Part.Circle(Vector(-49, -0.1, 0), Vector(0, 0, 1), 1.5), False)
sketch22.addGeometry(Part.Circle(Vector(-39.1, -0.1, 0), Vector(0, 0, 1), 1.5), False)
sketch22.addGeometry(Part.Circle(Vector(-49, -10, 0), Vector(0, 0, 1), 1.5), False)
sketch22.addGeometry(Part.Circle(Vector(-39.1, -10, 0), Vector(0, 0, 1), 1.5), False)
sketch22.addConstraint(Sketcher.Constraint("Equal", 0, 1))
sketch22.addConstraint(Sketcher.Constraint("Equal", 1, 2))
sketch22.addConstraint(Sketcher.Constraint("Equal", 2, 3))
sketch22.addConstraint(Sketcher.Constraint("Horizontal", 0, 3, 1, 3))
sketch22.addConstraint(Sketcher.Constraint("Horizontal", 2, 3, 3, 3))
sketch22.addConstraint(Sketcher.Constraint("Vertical", 0, 3, 2, 3))
sketch22.addConstraint(Sketcher.Constraint("Vertical", 1, 3, 3, 3))
sketch22.addConstraint(Sketcher.Constraint("Diameter", 0, Q("3 mm")))
sketch22.addConstraint(Sketcher.Constraint("DistanceX", 0, 3, -1, 1, Q("49 mm")))
sketch22.addConstraint(Sketcher.Constraint("DistanceY", 2, 3, -1, 1, Q("10 mm")))
sketch22.addConstraint(Sketcher.Constraint("DistanceY", 0, 3, -1, 1, Q("0.100505 mm")))
sketch22.addConstraint(Sketcher.Constraint("DistanceX", 1, 3, -1, 1, Q("39.100505 mm")))
sketch22.setExpression("Constraints[7]", "Params.sketch22_diameter")
pad14 = body.newObject("PartDesign::Pad", "Pad013")
pad14.Profile = sketch22
pad14.setExpression("Length", "Params.pad14_length")
pad14.Reversed = True

# Sketch on YZ plane
sketch23 = body.newObject("Sketcher::SketchObject", "Sketch022")
sketch23.AttachmentSupport = (doc.getObject("YZ_Plane"), [""])
sketch23.MapMode = "FlatFace"
sketch23.AttachmentOffset = App.Placement(Vector(0, 0, 30), App.Rotation())
sketch23.addGeometry(Part.Circle(Vector(-44.1, 1.9, 0), Vector(0, 0, 1), 1), False)
sketch23.addGeometry(Part.Circle(Vector(-44.1, -12.1, 0), Vector(0, 0, 1), 1), False)
sketch23.addGeometry(Part.Circle(Vector(-37.1, -5.1, 0), Vector(0, 0, 1), 1), False)
sketch23.addGeometry(Part.Circle(Vector(-51.1, -5.1, 0), Vector(0, 0, 1), 1), False)
sketch23.addConstraint(Sketcher.Constraint("Equal", 0, 1))
sketch23.addConstraint(Sketcher.Constraint("Equal", 1, 2))
sketch23.addConstraint(Sketcher.Constraint("Equal", 2, 3))
sketch23.addConstraint(Sketcher.Constraint("Horizontal", 2, 3, 3, 3))
sketch23.addConstraint(Sketcher.Constraint("Vertical", 0, 3, 1, 3))
sketch23.addConstraint(Sketcher.Constraint("Diameter", 0, Q("2 mm")))
sketch23.addConstraint(Sketcher.Constraint("DistanceY", 1, 3, 0, 3, Q("14 mm")))
sketch23.addConstraint(Sketcher.Constraint("DistanceX", 0, 3, 2, 3, Q("7 mm")))
sketch23.addConstraint(Sketcher.Constraint("DistanceY", 2, 3, 0, 3, Q("7 mm")))
sketch23.addConstraint(Sketcher.Constraint("DistanceX", 3, 3, 0, 3, Q("7 mm")))
sketch23.addConstraint(Sketcher.Constraint("DistanceX", 0, 3, -1, 1, Q("44.050253 mm")))
sketch23.addConstraint(Sketcher.Constraint("DistanceY", -1, 1, 0, 3, Q("1.949747 mm")))
sketch23.setExpression("Constraints[5]", "Params.sketch23_diameter")
pocket9 = body.newObject("PartDesign::Pocket", "Pocket008")
pocket9.Profile = sketch23
pocket9.setExpression("Length", "Params.pocket9_length")

doc.recompute()
